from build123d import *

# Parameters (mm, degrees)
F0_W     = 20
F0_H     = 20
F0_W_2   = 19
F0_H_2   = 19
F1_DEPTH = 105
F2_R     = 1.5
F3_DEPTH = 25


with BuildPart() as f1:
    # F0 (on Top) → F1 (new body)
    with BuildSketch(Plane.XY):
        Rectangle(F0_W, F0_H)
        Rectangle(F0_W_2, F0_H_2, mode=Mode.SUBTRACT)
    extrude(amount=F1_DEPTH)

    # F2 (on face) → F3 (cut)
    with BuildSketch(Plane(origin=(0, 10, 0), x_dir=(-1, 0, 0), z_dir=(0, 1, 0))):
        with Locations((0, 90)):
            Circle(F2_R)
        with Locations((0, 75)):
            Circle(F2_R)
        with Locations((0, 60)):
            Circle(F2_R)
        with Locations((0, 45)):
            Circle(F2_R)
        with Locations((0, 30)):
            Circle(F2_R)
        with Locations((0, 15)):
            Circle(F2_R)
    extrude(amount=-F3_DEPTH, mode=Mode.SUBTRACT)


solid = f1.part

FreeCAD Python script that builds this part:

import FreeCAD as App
import Part
import Sketcher
Q = App.Units.Quantity

doc = App.newDocument("Part")
body = doc.addObject("PartDesign::Body", "Body")

# Sketch on XY plane
sketch1 = doc.addObject("Sketcher::SketchObject", "Sketch")
body.addObject(sketch1)
sketch1.AttachmentSupport = (doc.XY_Plane, [""])
sketch1.MapMode = "FlatFace"
sketch1.addGeometry([
    Part.LineSegment(App.Vector(-10, 10, 0), App.Vector(-10, -10, 0)),  # 0
    Part.LineSegment(App.Vector(-10, -10, 0), App.Vector(10, -10, 0)),  # 1
    Part.LineSegment(App.Vector(10, -10, 0), App.Vector(10, 10, 0)),  # 2
    Part.LineSegment(App.Vector(10, 10, 0), App.Vector(-10, 10, 0)),  # 3
    Part.LineSegment(App.Vector(10, -10, 0), App.Vector(-10, -10, 0)),  # 4
    Part.LineSegment(App.Vector(-10, -10, 0), App.Vector(-10, 10, 0)),  # 5
    Part.LineSegment(App.Vector(-10, 10, 0), App.Vector(10, 10, 0)),  # 6
    Part.LineSegment(App.Vector(10, 10, 0), App.Vector(10, -10, 0)),  # 7
], False)
sketch1.addConstraint([
    Sketcher.Constraint("Coincident", 0, 2, 1, 1),
    Sketcher.Constraint("Coincident", 1, 2, 2, 1),
    Sketcher.Constraint("Coincident", 2, 2, 3, 1),
    Sketcher.Constraint("Coincident", 3, 2, 0, 1),
    Sketcher.Constraint("Coincident", 4, 2, 5, 1),
    Sketcher.Constraint("Coincident", 5, 2, 6, 1),
    Sketcher.Constraint("Coincident", 6, 2, 7, 1),
    Sketcher.Constraint("Coincident", 7, 2, 4, 1),
    Sketcher.Constraint("Vertical", 0),
    Sketcher.Constraint("Horizontal", 1),
    Sketcher.Constraint("Vertical", 2),
    Sketcher.Constraint("Horizontal", 3),
    Sketcher.Constraint("Horizontal", 4),
    Sketcher.Constraint("Vertical", 5),
    Sketcher.Constraint("Horizontal", 6),
    Sketcher.Constraint("Vertical", 7),
    Sketcher.Constraint("Symmetric", 0, 2, 2, 2, -1, 1),
    Sketcher.Constraint("Symmetric", 4, 2, 6, 2, -1, 1),
    Sketcher.Constraint("Equal", 3, 0),
    Sketcher.Constraint("Equal", 6, 5),
    Sketcher.Constraint("DistanceX", 1, 1, 1, 2, Q("20 mm")),
    Sketcher.Constraint("DistanceX", 4, 2, 4, 1, Q("19 mm")),
])
pad1 = doc.addObject("PartDesign::Pad", "Pad")
body.addObject(pad1)
pad1.Profile = sketch1
pad1.Length = 105

# Sketch on XZ plane
sketch2 = doc.addObject("Sketcher::SketchObject", "Sketch001")
body.addObject(sketch2)
sketch2.AttachmentSupport = (doc.XZ_Plane, [""])
sketch2.MapMode = "FlatFace"
sketch2.AttachmentOffset = App.Placement(App.Vector(0, 0, -10), App.Rotation())
sketch2.addGeometry([
    Part.Circle(App.Vector(0, 90, 0), App.Vector(0, 0, 1), 1.5),  # 0
    Part.Circle(App.Vector(0, 75, 0), App.Vector(0, 0, 1), 1.5),  # 1
    Part.Circle(App.Vector(0, 60, 0), App.Vector(0, 0, 1), 1.5),  # 2
    Part.Circle(App.Vector(0, 45, 0), App.Vector(0, 0, 1), 1.5),  # 3
    Part.Circle(App.Vector(0, 30, 0), App.Vector(0, 0, 1), 1.5),  # 4
    Part.Circle(App.Vector(0, 15, 0), App.Vector(0, 0, 1), 1.5),  # 5
], False)
sketch2.addConstraint([
    Sketcher.Constraint("Equal", 0, 1),
    Sketcher.Constraint("Equal", 1, 2),
    Sketcher.Constraint("Equal", 2, 3),
    Sketcher.Constraint("Equal", 3, 4),
    Sketcher.Constraint("Equal", 4, 5),
    Sketcher.Constraint("PointOnObject", 0, 3, -2),
    Sketcher.Constraint("PointOnObject", 1, 3, -2),
    Sketcher.Constraint("PointOnObject", 2, 3, -2),
    Sketcher.Constraint("PointOnObject", 3, 3, -2),
    Sketcher.Constraint("PointOnObject", 4, 3, -2),
    Sketcher.Constraint("PointOnObject", 5, 3, -2),
    Sketcher.Constraint("Diameter", 0, Q("3 mm")),
    Sketcher.Constraint("DistanceY", -1, 1, 0, 3, Q("90 mm")),
    Sketcher.Constraint("DistanceY", -1, 1, 1, 3, Q("75 mm")),
    Sketcher.Constraint("DistanceY", -1, 1, 2, 3, Q("60 mm")),
    Sketcher.Constraint("DistanceY", -1, 1, 3, 3, Q("45 mm")),
    Sketcher.Constraint("DistanceY", -1, 1, 4, 3, Q("30 mm")),
    Sketcher.Constraint("DistanceY", -1, 1, 5, 3, Q("15 mm")),
])
pocket1 = doc.addObject("PartDesign::Pocket", "Pocket")
body.addObject(pocket1)
pocket1.Profile = sketch2
pocket1.Length = 25
pocket1.Reversed = True

doc.recompute()
